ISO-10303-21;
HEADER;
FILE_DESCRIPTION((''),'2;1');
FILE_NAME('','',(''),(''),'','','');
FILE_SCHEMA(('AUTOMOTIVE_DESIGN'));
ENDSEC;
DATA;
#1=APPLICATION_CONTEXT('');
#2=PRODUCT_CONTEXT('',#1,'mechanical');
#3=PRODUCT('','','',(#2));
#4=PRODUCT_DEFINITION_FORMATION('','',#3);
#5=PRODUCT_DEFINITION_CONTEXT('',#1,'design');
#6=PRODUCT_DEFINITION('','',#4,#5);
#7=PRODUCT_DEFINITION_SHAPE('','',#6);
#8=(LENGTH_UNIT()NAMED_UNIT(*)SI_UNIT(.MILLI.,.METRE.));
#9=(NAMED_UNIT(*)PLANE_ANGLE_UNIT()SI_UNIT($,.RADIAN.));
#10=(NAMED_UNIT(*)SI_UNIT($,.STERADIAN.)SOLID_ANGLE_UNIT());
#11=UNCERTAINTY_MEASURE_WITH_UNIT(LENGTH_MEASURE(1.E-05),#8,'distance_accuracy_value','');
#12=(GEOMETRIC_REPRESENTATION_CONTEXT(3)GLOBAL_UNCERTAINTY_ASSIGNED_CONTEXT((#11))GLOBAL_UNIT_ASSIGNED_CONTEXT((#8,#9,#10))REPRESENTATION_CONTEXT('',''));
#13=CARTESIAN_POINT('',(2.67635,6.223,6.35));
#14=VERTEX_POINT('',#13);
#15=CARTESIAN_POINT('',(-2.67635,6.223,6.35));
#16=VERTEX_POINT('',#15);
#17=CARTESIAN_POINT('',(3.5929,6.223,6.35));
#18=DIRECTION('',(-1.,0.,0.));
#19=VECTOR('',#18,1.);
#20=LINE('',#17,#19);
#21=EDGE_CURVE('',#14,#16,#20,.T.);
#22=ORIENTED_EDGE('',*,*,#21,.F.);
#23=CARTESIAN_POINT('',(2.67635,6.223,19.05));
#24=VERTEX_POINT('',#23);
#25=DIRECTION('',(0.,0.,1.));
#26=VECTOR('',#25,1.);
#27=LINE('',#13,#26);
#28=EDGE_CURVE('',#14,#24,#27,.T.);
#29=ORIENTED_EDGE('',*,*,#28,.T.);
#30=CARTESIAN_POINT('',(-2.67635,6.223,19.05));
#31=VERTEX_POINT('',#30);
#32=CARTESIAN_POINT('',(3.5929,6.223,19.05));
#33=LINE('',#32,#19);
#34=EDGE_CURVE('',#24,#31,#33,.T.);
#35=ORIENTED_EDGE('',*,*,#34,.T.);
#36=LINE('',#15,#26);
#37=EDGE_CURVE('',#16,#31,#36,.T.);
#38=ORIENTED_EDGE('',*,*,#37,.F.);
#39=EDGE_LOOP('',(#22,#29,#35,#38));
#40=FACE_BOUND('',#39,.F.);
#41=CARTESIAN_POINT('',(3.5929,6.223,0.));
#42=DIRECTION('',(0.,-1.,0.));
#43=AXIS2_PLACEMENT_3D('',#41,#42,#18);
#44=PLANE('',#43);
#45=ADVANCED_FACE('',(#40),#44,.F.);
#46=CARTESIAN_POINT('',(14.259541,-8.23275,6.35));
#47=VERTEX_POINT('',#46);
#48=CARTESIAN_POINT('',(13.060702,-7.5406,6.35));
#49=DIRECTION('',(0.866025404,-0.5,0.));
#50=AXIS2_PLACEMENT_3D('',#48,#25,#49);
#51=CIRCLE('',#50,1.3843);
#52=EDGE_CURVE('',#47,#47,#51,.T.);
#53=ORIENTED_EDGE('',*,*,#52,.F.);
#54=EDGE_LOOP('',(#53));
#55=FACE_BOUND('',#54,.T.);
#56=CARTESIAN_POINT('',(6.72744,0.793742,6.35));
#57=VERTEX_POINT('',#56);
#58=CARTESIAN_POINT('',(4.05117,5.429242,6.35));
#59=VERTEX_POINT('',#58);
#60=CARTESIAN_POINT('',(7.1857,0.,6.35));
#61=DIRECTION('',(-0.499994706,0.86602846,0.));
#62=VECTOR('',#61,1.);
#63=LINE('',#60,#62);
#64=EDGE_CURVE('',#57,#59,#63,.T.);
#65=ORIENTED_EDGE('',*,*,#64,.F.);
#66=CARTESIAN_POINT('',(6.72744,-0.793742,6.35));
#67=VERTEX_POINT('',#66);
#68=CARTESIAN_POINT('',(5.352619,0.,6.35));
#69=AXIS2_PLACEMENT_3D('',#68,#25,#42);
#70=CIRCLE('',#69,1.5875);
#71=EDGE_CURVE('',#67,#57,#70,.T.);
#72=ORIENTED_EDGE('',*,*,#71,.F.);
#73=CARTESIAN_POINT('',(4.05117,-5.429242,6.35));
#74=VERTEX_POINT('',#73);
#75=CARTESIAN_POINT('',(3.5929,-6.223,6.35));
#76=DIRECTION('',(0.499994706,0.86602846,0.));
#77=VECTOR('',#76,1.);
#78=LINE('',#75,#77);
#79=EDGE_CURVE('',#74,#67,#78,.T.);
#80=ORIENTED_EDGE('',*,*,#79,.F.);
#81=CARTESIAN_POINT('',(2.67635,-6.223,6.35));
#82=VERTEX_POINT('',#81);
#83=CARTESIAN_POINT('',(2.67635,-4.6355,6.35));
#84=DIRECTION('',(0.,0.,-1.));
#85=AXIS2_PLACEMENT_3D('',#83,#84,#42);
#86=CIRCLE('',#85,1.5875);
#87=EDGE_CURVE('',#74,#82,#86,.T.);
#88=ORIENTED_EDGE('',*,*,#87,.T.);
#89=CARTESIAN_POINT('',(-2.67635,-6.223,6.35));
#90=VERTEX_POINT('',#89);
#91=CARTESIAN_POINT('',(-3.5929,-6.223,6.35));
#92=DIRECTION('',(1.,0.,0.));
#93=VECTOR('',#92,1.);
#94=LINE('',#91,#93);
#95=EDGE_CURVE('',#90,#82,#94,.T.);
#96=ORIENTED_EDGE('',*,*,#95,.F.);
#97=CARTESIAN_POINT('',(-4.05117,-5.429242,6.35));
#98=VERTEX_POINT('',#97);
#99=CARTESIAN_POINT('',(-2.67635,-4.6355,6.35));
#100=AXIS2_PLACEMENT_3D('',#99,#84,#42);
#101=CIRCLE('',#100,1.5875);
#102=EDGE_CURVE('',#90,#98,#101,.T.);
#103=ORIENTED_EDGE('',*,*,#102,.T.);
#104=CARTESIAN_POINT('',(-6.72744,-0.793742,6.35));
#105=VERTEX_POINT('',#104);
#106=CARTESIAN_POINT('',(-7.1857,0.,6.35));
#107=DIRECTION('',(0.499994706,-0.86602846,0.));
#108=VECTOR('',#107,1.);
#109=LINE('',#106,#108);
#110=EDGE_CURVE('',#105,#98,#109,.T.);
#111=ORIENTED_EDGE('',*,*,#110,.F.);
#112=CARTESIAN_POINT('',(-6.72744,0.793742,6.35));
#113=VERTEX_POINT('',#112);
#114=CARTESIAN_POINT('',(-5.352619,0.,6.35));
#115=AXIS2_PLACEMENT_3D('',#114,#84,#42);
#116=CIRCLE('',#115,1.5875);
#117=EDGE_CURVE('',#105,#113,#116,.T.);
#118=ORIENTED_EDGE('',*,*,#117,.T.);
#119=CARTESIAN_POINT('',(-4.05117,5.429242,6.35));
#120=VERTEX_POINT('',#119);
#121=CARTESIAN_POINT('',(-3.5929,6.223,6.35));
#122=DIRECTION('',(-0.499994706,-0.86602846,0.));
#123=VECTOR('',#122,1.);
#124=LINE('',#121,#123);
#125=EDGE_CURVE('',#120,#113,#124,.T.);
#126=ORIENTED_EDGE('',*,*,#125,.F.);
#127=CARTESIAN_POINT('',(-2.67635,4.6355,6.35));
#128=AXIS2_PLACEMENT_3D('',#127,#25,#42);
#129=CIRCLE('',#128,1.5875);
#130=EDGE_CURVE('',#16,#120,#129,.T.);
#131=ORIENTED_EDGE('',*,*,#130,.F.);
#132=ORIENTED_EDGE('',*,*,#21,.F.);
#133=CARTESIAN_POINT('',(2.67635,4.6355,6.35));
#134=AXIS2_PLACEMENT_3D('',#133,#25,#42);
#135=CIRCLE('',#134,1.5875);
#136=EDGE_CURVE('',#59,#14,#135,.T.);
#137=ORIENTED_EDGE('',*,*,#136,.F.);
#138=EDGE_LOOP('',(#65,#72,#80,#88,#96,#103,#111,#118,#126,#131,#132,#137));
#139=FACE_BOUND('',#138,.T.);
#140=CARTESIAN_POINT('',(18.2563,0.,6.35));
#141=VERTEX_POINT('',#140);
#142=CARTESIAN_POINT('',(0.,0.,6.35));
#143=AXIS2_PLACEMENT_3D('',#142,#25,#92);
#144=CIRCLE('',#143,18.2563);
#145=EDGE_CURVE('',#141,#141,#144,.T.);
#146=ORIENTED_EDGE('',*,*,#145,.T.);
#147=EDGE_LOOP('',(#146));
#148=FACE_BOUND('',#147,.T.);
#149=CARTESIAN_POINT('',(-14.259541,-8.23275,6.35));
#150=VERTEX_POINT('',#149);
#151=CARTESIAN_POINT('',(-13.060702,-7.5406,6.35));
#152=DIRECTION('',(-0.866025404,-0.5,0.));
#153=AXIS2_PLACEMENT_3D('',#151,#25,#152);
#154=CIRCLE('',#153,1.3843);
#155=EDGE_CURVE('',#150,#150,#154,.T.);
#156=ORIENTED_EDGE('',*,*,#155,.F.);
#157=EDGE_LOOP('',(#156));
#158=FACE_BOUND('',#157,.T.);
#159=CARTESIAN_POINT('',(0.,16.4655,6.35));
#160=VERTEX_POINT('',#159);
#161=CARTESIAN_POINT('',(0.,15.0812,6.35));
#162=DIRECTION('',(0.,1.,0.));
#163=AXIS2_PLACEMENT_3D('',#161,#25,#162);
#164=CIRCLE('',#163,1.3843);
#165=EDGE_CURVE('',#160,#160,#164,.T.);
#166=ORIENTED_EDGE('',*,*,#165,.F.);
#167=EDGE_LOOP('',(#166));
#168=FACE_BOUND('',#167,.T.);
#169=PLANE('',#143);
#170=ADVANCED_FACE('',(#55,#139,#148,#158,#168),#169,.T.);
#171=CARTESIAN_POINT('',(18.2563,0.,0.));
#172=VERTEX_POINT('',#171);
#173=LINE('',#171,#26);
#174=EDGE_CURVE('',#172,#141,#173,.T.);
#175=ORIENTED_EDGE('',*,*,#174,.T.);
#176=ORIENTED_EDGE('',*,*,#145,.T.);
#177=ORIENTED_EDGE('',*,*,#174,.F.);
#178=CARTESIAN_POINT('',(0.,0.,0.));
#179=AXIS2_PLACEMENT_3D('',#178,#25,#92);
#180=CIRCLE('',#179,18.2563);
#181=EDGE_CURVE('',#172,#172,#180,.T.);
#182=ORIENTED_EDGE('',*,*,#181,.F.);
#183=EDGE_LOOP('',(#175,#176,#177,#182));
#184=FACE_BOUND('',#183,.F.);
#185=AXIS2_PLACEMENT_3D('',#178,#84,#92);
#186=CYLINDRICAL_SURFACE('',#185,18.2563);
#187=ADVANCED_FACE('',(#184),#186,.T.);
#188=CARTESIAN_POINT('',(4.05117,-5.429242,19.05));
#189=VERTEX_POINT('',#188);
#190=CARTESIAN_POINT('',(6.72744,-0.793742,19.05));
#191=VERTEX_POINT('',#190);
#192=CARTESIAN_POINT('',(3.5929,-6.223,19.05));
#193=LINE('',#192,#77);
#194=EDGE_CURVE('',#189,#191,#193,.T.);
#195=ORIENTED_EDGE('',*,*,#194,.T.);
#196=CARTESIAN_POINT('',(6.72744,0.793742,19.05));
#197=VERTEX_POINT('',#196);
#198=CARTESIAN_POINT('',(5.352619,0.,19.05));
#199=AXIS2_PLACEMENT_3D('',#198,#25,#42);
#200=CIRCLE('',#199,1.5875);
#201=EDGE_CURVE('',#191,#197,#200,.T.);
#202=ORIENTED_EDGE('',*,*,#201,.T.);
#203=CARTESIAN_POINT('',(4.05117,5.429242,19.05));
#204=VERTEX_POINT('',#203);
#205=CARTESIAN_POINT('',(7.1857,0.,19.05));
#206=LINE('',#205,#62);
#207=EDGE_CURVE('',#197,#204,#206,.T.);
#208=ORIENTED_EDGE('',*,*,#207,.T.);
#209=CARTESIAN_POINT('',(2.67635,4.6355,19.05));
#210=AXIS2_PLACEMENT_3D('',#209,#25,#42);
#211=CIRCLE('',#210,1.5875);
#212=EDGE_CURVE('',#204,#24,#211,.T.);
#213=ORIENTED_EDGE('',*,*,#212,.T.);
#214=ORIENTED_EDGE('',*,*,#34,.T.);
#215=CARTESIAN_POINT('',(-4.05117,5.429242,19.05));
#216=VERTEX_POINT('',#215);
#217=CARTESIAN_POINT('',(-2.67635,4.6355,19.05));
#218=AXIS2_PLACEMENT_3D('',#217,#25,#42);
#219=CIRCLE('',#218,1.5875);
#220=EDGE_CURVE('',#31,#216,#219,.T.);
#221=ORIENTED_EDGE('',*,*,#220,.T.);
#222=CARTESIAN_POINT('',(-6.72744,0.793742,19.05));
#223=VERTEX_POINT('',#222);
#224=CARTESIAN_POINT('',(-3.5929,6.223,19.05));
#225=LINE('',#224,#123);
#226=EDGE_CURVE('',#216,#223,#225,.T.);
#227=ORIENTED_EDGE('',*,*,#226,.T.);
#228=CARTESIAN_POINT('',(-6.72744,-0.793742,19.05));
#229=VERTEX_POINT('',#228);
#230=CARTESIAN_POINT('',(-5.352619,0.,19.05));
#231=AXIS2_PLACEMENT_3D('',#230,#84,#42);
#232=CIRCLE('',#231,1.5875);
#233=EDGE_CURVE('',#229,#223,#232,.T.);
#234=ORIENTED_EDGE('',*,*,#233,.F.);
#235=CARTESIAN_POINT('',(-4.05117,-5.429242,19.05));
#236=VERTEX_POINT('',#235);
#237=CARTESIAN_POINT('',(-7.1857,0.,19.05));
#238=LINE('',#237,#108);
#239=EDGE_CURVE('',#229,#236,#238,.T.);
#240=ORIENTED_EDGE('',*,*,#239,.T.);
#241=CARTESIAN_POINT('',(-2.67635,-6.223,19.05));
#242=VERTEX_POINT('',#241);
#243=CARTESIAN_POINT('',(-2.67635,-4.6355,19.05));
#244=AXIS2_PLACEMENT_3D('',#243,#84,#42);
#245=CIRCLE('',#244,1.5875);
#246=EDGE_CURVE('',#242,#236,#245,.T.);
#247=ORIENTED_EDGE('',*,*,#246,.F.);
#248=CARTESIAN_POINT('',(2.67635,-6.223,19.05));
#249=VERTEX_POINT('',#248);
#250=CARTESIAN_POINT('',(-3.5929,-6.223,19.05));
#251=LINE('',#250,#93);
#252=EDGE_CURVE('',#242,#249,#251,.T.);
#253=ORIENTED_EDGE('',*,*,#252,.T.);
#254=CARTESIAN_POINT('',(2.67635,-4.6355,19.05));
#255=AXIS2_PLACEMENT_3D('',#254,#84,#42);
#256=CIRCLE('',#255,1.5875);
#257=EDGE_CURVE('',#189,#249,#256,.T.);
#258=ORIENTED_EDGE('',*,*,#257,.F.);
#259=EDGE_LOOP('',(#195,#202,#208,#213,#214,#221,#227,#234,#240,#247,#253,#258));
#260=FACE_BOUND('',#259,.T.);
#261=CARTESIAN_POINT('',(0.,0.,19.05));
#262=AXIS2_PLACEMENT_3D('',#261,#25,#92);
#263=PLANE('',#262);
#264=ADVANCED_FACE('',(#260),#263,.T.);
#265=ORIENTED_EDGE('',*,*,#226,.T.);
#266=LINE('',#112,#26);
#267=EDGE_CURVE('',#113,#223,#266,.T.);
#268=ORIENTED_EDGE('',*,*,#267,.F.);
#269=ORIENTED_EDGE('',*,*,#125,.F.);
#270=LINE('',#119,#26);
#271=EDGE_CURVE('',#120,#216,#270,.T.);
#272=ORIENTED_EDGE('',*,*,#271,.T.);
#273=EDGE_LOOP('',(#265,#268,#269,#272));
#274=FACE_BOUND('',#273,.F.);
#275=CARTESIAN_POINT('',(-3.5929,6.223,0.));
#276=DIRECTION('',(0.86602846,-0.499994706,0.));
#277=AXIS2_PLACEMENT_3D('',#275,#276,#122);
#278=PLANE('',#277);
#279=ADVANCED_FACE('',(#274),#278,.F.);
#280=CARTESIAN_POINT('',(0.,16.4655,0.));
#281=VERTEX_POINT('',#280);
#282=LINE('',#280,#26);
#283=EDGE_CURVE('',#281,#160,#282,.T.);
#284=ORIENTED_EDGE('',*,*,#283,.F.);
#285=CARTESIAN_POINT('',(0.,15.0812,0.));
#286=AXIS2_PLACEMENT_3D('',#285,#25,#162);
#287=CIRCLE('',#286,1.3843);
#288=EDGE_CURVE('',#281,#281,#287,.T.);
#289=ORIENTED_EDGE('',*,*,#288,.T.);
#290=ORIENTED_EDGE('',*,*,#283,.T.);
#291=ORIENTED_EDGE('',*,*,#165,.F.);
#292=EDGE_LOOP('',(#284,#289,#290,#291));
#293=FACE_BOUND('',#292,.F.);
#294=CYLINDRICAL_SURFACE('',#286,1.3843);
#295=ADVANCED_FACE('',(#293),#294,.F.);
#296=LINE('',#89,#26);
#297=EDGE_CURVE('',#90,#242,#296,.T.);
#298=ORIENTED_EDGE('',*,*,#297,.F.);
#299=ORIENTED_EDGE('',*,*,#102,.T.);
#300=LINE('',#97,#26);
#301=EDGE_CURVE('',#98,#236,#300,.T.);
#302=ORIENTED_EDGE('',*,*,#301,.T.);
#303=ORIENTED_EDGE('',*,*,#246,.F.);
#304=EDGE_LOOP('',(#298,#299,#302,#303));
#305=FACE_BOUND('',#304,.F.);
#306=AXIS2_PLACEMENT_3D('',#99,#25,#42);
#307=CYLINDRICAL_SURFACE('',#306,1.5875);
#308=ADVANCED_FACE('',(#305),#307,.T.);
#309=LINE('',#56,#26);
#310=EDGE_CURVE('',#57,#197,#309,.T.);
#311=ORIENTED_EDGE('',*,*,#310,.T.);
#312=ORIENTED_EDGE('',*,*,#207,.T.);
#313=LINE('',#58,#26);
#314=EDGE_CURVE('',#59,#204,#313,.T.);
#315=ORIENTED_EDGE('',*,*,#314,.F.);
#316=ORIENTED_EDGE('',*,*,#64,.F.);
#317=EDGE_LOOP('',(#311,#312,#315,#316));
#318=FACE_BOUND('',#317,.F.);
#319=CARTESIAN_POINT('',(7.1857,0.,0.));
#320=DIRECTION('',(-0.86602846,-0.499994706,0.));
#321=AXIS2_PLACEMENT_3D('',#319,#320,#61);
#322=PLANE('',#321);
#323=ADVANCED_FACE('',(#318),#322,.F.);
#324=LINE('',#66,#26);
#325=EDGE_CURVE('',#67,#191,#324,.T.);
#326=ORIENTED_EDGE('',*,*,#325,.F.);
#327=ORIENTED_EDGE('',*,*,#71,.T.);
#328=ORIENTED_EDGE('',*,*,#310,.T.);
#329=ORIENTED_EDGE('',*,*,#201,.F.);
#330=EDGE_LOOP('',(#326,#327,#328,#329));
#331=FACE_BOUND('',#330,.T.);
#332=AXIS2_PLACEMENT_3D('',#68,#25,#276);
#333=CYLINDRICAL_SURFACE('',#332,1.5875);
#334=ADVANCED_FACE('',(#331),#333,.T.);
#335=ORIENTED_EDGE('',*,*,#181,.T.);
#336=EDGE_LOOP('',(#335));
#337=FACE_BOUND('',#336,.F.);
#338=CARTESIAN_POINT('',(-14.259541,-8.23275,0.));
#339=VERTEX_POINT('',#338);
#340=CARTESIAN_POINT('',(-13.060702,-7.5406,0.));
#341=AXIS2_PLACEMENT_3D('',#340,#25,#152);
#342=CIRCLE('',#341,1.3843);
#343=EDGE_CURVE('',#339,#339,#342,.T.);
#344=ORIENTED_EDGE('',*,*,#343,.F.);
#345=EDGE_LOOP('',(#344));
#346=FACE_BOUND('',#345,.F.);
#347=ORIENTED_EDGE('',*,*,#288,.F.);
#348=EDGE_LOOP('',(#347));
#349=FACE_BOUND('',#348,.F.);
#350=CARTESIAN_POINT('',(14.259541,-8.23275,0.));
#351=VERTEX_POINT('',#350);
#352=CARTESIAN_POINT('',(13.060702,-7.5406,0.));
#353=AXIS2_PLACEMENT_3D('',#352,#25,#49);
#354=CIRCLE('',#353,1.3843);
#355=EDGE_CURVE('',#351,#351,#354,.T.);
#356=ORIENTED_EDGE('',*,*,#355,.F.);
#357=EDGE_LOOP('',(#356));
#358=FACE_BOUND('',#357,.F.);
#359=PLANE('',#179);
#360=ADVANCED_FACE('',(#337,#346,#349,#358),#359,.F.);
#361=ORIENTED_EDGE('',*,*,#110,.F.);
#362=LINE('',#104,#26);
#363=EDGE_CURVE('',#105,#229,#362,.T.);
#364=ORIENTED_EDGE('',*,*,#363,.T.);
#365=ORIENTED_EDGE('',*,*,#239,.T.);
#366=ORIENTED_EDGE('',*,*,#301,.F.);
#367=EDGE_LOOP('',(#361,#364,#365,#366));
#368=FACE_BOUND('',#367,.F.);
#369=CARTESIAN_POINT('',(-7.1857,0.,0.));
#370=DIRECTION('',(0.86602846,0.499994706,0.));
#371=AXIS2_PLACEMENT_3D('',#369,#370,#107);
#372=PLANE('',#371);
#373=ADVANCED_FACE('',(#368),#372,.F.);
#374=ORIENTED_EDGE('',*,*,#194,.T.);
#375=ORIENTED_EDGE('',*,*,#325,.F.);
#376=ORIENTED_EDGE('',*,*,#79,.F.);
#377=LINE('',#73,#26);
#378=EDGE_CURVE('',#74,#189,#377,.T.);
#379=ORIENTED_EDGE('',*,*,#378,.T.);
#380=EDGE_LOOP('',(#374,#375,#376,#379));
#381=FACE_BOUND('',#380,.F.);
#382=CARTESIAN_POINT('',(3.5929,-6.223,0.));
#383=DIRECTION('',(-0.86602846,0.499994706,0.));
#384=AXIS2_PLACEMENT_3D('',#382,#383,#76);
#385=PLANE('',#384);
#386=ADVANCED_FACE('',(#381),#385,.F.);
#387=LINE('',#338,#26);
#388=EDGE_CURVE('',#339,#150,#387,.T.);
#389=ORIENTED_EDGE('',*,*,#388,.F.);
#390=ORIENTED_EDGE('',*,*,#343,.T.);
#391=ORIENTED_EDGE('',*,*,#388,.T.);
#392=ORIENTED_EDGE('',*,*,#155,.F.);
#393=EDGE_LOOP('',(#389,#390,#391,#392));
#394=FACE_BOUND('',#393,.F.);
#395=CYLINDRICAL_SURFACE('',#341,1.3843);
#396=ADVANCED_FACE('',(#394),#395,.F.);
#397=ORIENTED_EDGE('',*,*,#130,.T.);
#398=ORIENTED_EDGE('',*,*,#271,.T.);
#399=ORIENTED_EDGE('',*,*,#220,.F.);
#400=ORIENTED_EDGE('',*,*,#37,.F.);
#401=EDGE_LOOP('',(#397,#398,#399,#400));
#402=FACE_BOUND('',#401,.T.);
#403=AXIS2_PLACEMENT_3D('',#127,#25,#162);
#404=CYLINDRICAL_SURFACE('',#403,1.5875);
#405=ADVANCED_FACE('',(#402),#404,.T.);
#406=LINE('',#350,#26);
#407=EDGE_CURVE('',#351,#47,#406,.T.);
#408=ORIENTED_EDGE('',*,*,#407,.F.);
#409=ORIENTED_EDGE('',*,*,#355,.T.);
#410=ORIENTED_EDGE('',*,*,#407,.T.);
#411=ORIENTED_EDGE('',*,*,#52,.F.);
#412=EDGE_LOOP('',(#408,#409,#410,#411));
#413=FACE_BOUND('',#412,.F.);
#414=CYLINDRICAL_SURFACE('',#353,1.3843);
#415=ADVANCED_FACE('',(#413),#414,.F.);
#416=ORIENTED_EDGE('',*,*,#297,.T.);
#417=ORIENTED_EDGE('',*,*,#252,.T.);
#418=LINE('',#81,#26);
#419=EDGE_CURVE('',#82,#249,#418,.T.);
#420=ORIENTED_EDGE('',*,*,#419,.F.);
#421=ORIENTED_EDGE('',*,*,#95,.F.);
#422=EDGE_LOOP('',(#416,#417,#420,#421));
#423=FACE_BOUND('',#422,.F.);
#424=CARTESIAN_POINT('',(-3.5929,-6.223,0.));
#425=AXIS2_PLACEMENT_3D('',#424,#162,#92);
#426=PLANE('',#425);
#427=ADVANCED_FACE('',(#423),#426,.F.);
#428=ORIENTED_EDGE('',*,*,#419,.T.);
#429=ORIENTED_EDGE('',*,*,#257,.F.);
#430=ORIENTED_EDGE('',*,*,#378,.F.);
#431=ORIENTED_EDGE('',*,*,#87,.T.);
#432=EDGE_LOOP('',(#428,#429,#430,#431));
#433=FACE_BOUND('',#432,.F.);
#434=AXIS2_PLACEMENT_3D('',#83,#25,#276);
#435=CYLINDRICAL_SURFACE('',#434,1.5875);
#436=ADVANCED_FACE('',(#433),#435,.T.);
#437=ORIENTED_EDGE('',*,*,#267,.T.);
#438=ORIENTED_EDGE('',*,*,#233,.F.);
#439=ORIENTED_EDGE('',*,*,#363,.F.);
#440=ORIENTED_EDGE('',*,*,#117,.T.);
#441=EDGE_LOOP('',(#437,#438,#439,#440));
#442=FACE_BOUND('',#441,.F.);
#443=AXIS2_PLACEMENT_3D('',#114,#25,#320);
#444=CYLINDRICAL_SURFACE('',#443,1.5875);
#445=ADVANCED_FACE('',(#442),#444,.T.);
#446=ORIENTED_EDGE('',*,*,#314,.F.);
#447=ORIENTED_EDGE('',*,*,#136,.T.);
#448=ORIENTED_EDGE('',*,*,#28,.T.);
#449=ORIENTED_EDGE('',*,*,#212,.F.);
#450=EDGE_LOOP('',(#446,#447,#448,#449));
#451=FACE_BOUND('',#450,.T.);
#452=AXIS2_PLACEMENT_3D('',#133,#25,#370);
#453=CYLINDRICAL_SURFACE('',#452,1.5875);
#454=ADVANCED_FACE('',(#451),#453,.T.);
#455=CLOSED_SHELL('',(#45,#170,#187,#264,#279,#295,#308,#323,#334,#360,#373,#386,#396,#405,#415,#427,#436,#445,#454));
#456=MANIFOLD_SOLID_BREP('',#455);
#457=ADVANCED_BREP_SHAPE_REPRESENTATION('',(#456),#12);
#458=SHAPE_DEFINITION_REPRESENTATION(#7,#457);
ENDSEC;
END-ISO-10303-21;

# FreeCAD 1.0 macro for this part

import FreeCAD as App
import Part
import Sketcher

V = App.Vector
Q = App.Units.Quantity


def edges_at(feature, points):
    """Names of the edges that pass closest to the given points."""
    edges = feature.Shape.Edges
    near = lambda p: min(range(len(edges)), key=lambda i: edges[i].distToShape(Part.Vertex(*p))[0])
    return sorted({f"Edge{near(p) + 1}" for p in points})


def add_polygon(sketch, points):
    """Adds a closed chain of lines whose ends are joined by coincident constraints."""
    first, n = sketch.GeometryCount, len(points)
    for a, b in zip(points, points[1:] + points[:1]):
        sketch.addGeometry(Part.LineSegment(App.Vector(*a, 0), App.Vector(*b, 0)), False)
    for i in range(n):
        sketch.addConstraint(Sketcher.Constraint("Coincident", first + i, 2, first + (i + 1) % n, 1))

doc = App.newDocument("Part")
params = doc.addObject("Spreadsheet::Sheet", "Params")
for row, (alias, value) in enumerate([
    ("sketch1_diameter", "1.4375 in"),
    ("pad1_length", "0.25 in"),
    ("pad2_length", "0.75 in"),
    ("sketch3_diameter", "0.109 in"),
    ("hole_diameter", "0.109 in"),
    ("hole_depth", "0.25 in"),
    ("fillet_radius", "0.0625 in"),
], start=1):
    params.set(f"A{row}", alias)
    params.set(f"B{row}", "=" + value)
    params.setAlias(f"B{row}", alias)

body = doc.addObject("PartDesign::Body", "Body")

# Sketch on XY plane
sketch1 = body.newObject("Sketcher::SketchObject", "Sketch")
sketch1.AttachmentSupport = (doc.getObject("XY_Plane"), [""])
sketch1.MapMode = "FlatFace"
sketch1.addGeometry(Part.Circle(V(0, 0, 0), V(0, 0, 1), 18), False)  # 0
add_polygon(sketch1, [(7, 0), (4, -6), (-4, -6), (-7, 0), (-4, 6), (4, 6)])  # lines 1-6
sketch1.addConstraint(Sketcher.Constraint("Horizontal", 2))
sketch1.addConstraint(Sketcher.Constraint("Horizontal", 5))
sketch1.addConstraint(Sketcher.Constraint("Coincident", 0, 3, -1, 1))
sketch1.addConstraint(Sketcher.Constraint("Symmetric", 1, 2, 4, 2, -1, 1))
sketch1.addConstraint(Sketcher.Constraint("Symmetric", 3, 2, 6, 2, -1, 1))
sketch1.addConstraint(Sketcher.Constraint("PointOnObject", 3, 2, -1))
sketch1.addConstraint(Sketcher.Constraint("Parallel", 3, 6))
sketch1.addConstraint(Sketcher.Constraint("Vertical", 2, 2, 4, 2))
sketch1.addConstraint(Sketcher.Constraint("Diameter", 0, Q("1.4375 in")))
sketch1.addConstraint(Sketcher.Constraint("DistanceY", 1, 2, -1, 1, Q("0.245 in")))
sketch1.addConstraint(Sketcher.Constraint("Angle", 1, Q("-119.9996 deg")))
sketch1.addConstraint(Sketcher.Constraint("DistanceX", 2, 2, 2, 1, Q("0.2829 in")))
sketch1.setExpression("Constraints[14]", "Params.sketch1_diameter")
pad1 = body.newObject("PartDesign::Pad", "Pad")
pad1.Profile = sketch1
pad1.setExpression("Length", "Params.pad1_length")

# Sketch on XY plane
sketch2 = body.newObject("Sketcher::SketchObject", "Sketch001")
sketch2.AttachmentSupport = (doc.getObject("XY_Plane"), [""])
sketch2.MapMode = "FlatFace"
add_polygon(sketch2, [(-4, -6), (4, -6), (7, 0), (4, 6), (-4, 6), (-7, 0)])  # lines 0-5
sketch2.addConstraint(Sketcher.Constraint("Horizontal", 0))
sketch2.addConstraint(Sketcher.Constraint("Horizontal", 3))
sketch2.addConstraint(Sketcher.Constraint("Symmetric", 0, 2, 3, 2, -1, 1))
sketch2.addConstraint(Sketcher.Constraint("Symmetric", 1, 2, 4, 2, -1, 1))
sketch2.addConstraint(Sketcher.Constraint("PointOnObject", 1, 2, -1))
sketch2.addConstraint(Sketcher.Constraint("Parallel", 2, 5))
sketch2.addConstraint(Sketcher.Constraint("Vertical", 0, 2, 2, 2))
sketch2.addConstraint(Sketcher.Constraint("DistanceY", 0, 2, -1, 1, Q("0.245 in")))
sketch2.addConstraint(Sketcher.Constraint("Angle", 1, Q("60.0004 deg")))
sketch2.addConstraint(Sketcher.Constraint("DistanceX", 0, 1, 0, 2, Q("0.2829 in")))
pad2 = body.newObject("PartDesign::Pad", "Pad001")
pad2.Profile = sketch2
pad2.setExpression("Length", "Params.pad2_length")

# Sketch on XY plane
sketch3 = body.newObject("Sketcher::SketchObject", "Sketch002")
sketch3.AttachmentSupport = (doc.getObject("XY_Plane"), [""])
sketch3.MapMode = "FlatFace"
sketch3.addGeometry(Part.Circle(V(0, 15.1, 0), V(0, 0, 1), 1.4), False)
sketch3.addConstraint(Sketcher.Constraint("PointOnObject", 0, 3, -2))
sketch3.addConstraint(Sketcher.Constraint("Diameter", 0, Q("0.109 in")))
sketch3.addConstraint(Sketcher.Constraint("DistanceY", -1, 1, 0, 3, Q("0.593748 in")))
sketch3.setExpression("Constraints[1]", "Params.sketch3_diameter")
doc.recompute()
hole = body.newObject("PartDesign::Hole", "Hole")
hole.Profile = sketch3
hole.ThreadType = "None"
hole.setExpression("Diameter", "Params.hole_diameter")
hole.DepthType = "Dimension"
hole.setExpression("Depth", "Params.hole_depth")
hole.DrillPoint = "Angled"
hole.DrillPointAngle = 118
hole.Reversed = True
doc.recompute()

polarpattern = body.newObject("PartDesign::PolarPattern", "PolarPattern")
polarpattern.Originals = [hole]
polarpattern.Axis = (doc.getObject("Z_Axis"), [""])
polarpattern.Angle = 360
polarpattern.Occurrences = 3
body.Tip = polarpattern
doc.recompute()

fillet = body.newObject("PartDesign::Fillet", "Fillet")
fillet.Base = (polarpattern, edges_at(polarpattern, [
    (3.593, -6.223, 12.7),
    (-3.593, -6.223, 12.7),
    (-7.186, 0, 12.7),
    (-3.593, 6.223, 12.7),
    (3.593, 6.223, 12.7),
    (7.186, 0, 12.7),
]))
fillet.setExpression("Radius", "Params.fillet_radius")

doc.recompute()
